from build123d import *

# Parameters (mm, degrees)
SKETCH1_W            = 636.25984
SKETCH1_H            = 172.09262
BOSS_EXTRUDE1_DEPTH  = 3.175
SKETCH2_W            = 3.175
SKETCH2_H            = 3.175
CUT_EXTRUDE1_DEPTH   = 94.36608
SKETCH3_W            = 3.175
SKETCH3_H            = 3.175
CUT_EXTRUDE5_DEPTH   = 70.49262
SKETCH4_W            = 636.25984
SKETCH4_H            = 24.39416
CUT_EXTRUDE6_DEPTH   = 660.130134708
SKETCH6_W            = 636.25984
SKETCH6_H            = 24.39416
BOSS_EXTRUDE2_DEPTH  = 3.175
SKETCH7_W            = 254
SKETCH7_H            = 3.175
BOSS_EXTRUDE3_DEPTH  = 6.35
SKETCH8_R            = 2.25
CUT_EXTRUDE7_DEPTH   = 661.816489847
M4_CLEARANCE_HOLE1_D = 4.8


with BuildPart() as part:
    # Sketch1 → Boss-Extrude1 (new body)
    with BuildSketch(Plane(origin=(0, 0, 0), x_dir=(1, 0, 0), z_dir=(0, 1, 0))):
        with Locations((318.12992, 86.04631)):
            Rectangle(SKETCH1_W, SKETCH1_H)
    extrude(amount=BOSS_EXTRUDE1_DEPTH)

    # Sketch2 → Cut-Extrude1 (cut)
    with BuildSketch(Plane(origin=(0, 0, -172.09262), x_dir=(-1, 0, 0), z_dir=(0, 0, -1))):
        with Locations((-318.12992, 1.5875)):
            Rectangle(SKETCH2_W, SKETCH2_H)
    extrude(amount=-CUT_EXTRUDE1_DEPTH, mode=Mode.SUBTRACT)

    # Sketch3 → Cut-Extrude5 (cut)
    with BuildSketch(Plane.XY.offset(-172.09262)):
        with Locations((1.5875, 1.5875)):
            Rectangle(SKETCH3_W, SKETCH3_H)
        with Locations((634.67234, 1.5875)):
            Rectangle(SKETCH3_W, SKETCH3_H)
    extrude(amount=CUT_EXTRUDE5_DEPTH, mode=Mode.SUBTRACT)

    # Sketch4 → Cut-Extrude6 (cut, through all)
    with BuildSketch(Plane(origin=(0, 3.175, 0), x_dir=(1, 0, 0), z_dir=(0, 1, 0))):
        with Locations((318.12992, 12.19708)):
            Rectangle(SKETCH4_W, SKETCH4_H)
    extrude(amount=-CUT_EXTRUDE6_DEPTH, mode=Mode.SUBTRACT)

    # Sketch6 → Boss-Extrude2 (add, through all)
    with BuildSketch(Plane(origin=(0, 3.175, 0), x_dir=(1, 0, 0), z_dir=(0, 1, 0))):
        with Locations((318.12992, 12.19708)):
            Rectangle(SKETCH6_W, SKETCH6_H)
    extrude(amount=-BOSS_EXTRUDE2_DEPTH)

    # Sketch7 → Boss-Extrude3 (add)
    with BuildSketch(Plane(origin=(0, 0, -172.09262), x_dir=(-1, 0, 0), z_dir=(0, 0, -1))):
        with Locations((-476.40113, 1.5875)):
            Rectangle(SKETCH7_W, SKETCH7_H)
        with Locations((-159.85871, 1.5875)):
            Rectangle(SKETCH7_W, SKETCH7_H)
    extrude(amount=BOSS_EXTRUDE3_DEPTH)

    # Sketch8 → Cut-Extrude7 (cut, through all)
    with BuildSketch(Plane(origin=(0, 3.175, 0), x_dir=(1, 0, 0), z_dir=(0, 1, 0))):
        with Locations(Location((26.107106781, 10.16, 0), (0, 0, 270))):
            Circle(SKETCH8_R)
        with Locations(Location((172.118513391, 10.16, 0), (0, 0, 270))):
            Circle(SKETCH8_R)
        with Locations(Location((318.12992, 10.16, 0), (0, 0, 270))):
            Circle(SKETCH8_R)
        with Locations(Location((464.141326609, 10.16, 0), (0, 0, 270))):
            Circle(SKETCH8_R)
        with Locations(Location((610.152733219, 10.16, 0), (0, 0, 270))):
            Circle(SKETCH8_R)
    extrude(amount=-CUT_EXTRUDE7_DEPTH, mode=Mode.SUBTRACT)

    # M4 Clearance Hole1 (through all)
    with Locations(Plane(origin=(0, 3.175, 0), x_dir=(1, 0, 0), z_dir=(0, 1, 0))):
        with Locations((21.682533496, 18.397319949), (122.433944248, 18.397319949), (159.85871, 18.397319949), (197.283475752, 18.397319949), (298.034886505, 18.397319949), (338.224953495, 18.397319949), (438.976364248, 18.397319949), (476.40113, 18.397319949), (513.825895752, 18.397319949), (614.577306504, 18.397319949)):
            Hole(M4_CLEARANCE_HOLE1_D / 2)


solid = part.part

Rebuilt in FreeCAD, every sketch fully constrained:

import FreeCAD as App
import Part
import Sketcher
from FreeCAD import Vector
Q = App.Units.Quantity

doc = App.newDocument("Part")
body = doc.addObject("PartDesign::Body", "Body")

# Sketch on XZ plane
sketch1 = doc.addObject("Sketcher::SketchObject", "Sketch")
body.addObject(sketch1)
sketch1.AttachmentSupport = (doc.XZ_Plane, [""])
sketch1.MapMode = "FlatFace"
sketch1.addGeometry(Part.LineSegment(Vector(0, -172, 0), Vector(0, 0, 0)), False)
sketch1.addGeometry(Part.LineSegment(Vector(0, 0, 0), Vector(636, 0, 0)), False)
sketch1.addGeometry(Part.LineSegment(Vector(636, 0, 0), Vector(636, -172, 0)), False)
sketch1.addGeometry(Part.LineSegment(Vector(636, -172, 0), Vector(0, -172, 0)), False)
sketch1.addConstraint(Sketcher.Constraint("Coincident", 0, 2, 1, 1))
sketch1.addConstraint(Sketcher.Constraint("Coincident", 1, 2, 2, 1))
sketch1.addConstraint(Sketcher.Constraint("Coincident", 2, 2, 3, 1))
sketch1.addConstraint(Sketcher.Constraint("Coincident", 3, 2, 0, 1))
sketch1.addConstraint(Sketcher.Constraint("Vertical", 0))
sketch1.addConstraint(Sketcher.Constraint("Horizontal", 1))
sketch1.addConstraint(Sketcher.Constraint("Vertical", 2))
sketch1.addConstraint(Sketcher.Constraint("Horizontal", 3))
sketch1.addConstraint(Sketcher.Constraint("Coincident", 0, 2, -1, 1))
sketch1.addConstraint(Sketcher.Constraint("DistanceX", 1, 1, 1, 2, Q("25.0496 in")))
sketch1.addConstraint(Sketcher.Constraint("DistanceY", 0, 1, 0, 2, Q("6.7753 in")))
pad1 = doc.addObject("PartDesign::Pad", "Pad")
body.addObject(pad1)
pad1.Profile = sketch1
pad1.Length = Q("0.125 in")
pad1.Reversed = True

# Sketch on XY plane
sketch2 = doc.addObject("Sketcher::SketchObject", "Sketch001")
body.addObject(sketch2)
sketch2.AttachmentSupport = (doc.XY_Plane, [""])
sketch2.MapMode = "FlatFace"
sketch2.AttachmentOffset = App.Placement(Vector(0, 0, -6.7753 * 25.4), App.Rotation())
sketch2.addGeometry(Part.LineSegment(Vector(319.7, 3.2, 0), Vector(319.7, 0, 0)), False)
sketch2.addGeometry(Part.LineSegment(Vector(319.7, 0, 0), Vector(316.5, 0, 0)), False)
sketch2.addGeometry(Part.LineSegment(Vector(316.5, 0, 0), Vector(316.5, 3.2, 0)), False)
sketch2.addGeometry(Part.LineSegment(Vector(316.5, 3.2, 0), Vector(319.7, 3.2, 0)), False)
sketch2.addConstraint(Sketcher.Constraint("Coincident", 0, 2, 1, 1))
sketch2.addConstraint(Sketcher.Constraint("Coincident", 1, 2, 2, 1))
sketch2.addConstraint(Sketcher.Constraint("Coincident", 2, 2, 3, 1))
sketch2.addConstraint(Sketcher.Constraint("Coincident", 3, 2, 0, 1))
sketch2.addConstraint(Sketcher.Constraint("Vertical", 0))
sketch2.addConstraint(Sketcher.Constraint("Horizontal", 1))
sketch2.addConstraint(Sketcher.Constraint("Vertical", 2))
sketch2.addConstraint(Sketcher.Constraint("Horizontal", 3))
sketch2.addConstraint(Sketcher.Constraint("PointOnObject", 0, 2, -1))
sketch2.addConstraint(Sketcher.Constraint("Equal", 3, 0))
sketch2.addConstraint(Sketcher.Constraint("DistanceX", 1, 2, 1, 1, Q("0.125 in")))
sketch2.addConstraint(Sketcher.Constraint("DistanceX", -1, 1, 0, 2, Q("12.5873 in")))
pocket1 = doc.addObject("PartDesign::Pocket", "Pocket")
body.addObject(pocket1)
pocket1.Profile = sketch2
pocket1.Length = Q("3.7152 in")
pocket1.Reversed = True

# Sketch on XY plane
sketch3 = doc.addObject("Sketcher::SketchObject", "Sketch002")
body.addObject(sketch3)
sketch3.AttachmentSupport = (doc.XY_Plane, [""])
sketch3.MapMode = "FlatFace"
sketch3.AttachmentOffset = App.Placement(Vector(0, 0, -6.7753 * 25.4), App.Rotation())
sketch3.addGeometry(Part.LineSegment(Vector(0, 3.2, 0), Vector(0, 0, 0)), False)
sketch3.addGeometry(Part.LineSegment(Vector(0, 0, 0), Vector(3.2, 0, 0)), False)
sketch3.addGeometry(Part.LineSegment(Vector(3.2, 0, 0), Vector(3.2, 3.2, 0)), False)
sketch3.addGeometry(Part.LineSegment(Vector(3.2, 3.2, 0), Vector(0, 3.2, 0)), False)
sketch3.addGeometry(Part.LineSegment(Vector(633.1, 3.2, 0), Vector(633.1, 0, 0)), False)
sketch3.addGeometry(Part.LineSegment(Vector(633.1, 0, 0), Vector(636.3, 0, 0)), False)
sketch3.addGeometry(Part.LineSegment(Vector(636.3, 0, 0), Vector(636.3, 3.2, 0)), False)
sketch3.addGeometry(Part.LineSegment(Vector(636.3, 3.2, 0), Vector(633.1, 3.2, 0)), False)
sketch3.addConstraint(Sketcher.Constraint("Coincident", 0, 2, 1, 1))
sketch3.addConstraint(Sketcher.Constraint("Coincident", 1, 2, 2, 1))
sketch3.addConstraint(Sketcher.Constraint("Coincident", 2, 2, 3, 1))
sketch3.addConstraint(Sketcher.Constraint("Coincident", 3, 2, 0, 1))
sketch3.addConstraint(Sketcher.Constraint("Coincident", 4, 2, 5, 1))
sketch3.addConstraint(Sketcher.Constraint("Coincident", 5, 2, 6, 1))
sketch3.addConstraint(Sketcher.Constraint("Coincident", 6, 2, 7, 1))
sketch3.addConstraint(Sketcher.Constraint("Coincident", 7, 2, 4, 1))
sketch3.addConstraint(Sketcher.Constraint("Vertical", 0))
sketch3.addConstraint(Sketcher.Constraint("Horizontal", 1))
sketch3.addConstraint(Sketcher.Constraint("Vertical", 2))
sketch3.addConstraint(Sketcher.Constraint("Horizontal", 3))
sketch3.addConstraint(Sketcher.Constraint("Vertical", 4))
sketch3.addConstraint(Sketcher.Constraint("Horizontal", 5))
sketch3.addConstraint(Sketcher.Constraint("Vertical", 6))
sketch3.addConstraint(Sketcher.Constraint("Horizontal", 7))
sketch3.addConstraint(Sketcher.Constraint("Coincident", 0, 2, -1, 1))
sketch3.addConstraint(Sketcher.Constraint("PointOnObject", 4, 2, -1))
sketch3.addConstraint(Sketcher.Constraint("Horizontal", 3, 2, 6, 2))
sketch3.addConstraint(Sketcher.Constraint("Equal", 3, 5))
sketch3.addConstraint(Sketcher.Constraint("Equal", 7, 0))
sketch3.addConstraint(Sketcher.Constraint("DistanceX", 1, 1, 1, 2, Q("0.125 in")))
sketch3.addConstraint(Sketcher.Constraint("DistanceX", -1, 1, 4, 2, Q("24.9246 in")))
pocket2 = doc.addObject("PartDesign::Pocket", "Pocket001")
body.addObject(pocket2)
pocket2.Profile = sketch3
pocket2.Length = Q("2.7753 in")
pocket2.Reversed = True

# Sketch on XZ plane
sketch4 = doc.addObject("Sketcher::SketchObject", "Sketch003")
body.addObject(sketch4)
sketch4.AttachmentSupport = (doc.XZ_Plane, [""])
sketch4.MapMode = "FlatFace"
sketch4.AttachmentOffset = App.Placement(Vector(0, 0, -0.125 * 25.4), App.Rotation())
sketch4.addGeometry(Part.LineSegment(Vector(0, -24, 0), Vector(0, 0, 0)), False)
sketch4.addGeometry(Part.LineSegment(Vector(0, 0, 0), Vector(636, 0, 0)), False)
sketch4.addGeometry(Part.LineSegment(Vector(636, 0, 0), Vector(636, -24, 0)), False)
sketch4.addGeometry(Part.LineSegment(Vector(636, -24, 0), Vector(0, -24, 0)), False)
sketch4.addConstraint(Sketcher.Constraint("Coincident", 0, 2, 1, 1))
sketch4.addConstraint(Sketcher.Constraint("Coincident", 1, 2, 2, 1))
sketch4.addConstraint(Sketcher.Constraint("Coincident", 2, 2, 3, 1))
sketch4.addConstraint(Sketcher.Constraint("Coincident", 3, 2, 0, 1))
sketch4.addConstraint(Sketcher.Constraint("Vertical", 0))
sketch4.addConstraint(Sketcher.Constraint("Horizontal", 1))
sketch4.addConstraint(Sketcher.Constraint("Vertical", 2))
sketch4.addConstraint(Sketcher.Constraint("Horizontal", 3))
sketch4.addConstraint(Sketcher.Constraint("Coincident", 0, 2, -1, 1))
sketch4.addConstraint(Sketcher.Constraint("DistanceX", 1, 1, 1, 2, Q("25.0496 in")))
sketch4.addConstraint(Sketcher.Constraint("DistanceY", 0, 1, 0, 2, Q("0.9604 in")))
pocket3 = doc.addObject("PartDesign::Pocket", "Pocket002")
body.addObject(pocket3)
pocket3.Profile = sketch4
pocket3.Type = "ThroughAll"
pocket3.Reversed = True

# Sketch on XZ plane
sketch5 = doc.addObject("Sketcher::SketchObject", "Sketch004")
body.addObject(sketch5)
sketch5.AttachmentSupport = (doc.XZ_Plane, [""])
sketch5.MapMode = "FlatFace"
sketch5.AttachmentOffset = App.Placement(Vector(0, 0, -0.125 * 25.4), App.Rotation())
sketch5.addGeometry(Part.LineSegment(Vector(0, -24, 0), Vector(0, 0, 0)), False)
sketch5.addGeometry(Part.LineSegment(Vector(0, 0, 0), Vector(636, 0, 0)), False)
sketch5.addGeometry(Part.LineSegment(Vector(636, 0, 0), Vector(636, -24, 0)), False)
sketch5.addGeometry(Part.LineSegment(Vector(636, -24, 0), Vector(0, -24, 0)), False)
sketch5.addConstraint(Sketcher.Constraint("Coincident", 0, 2, 1, 1))
sketch5.addConstraint(Sketcher.Constraint("Coincident", 1, 2, 2, 1))
sketch5.addConstraint(Sketcher.Constraint("Coincident", 2, 2, 3, 1))
sketch5.addConstraint(Sketcher.Constraint("Coincident", 3, 2, 0, 1))
sketch5.addConstraint(Sketcher.Constraint("Vertical", 0))
sketch5.addConstraint(Sketcher.Constraint("Horizontal", 1))
sketch5.addConstraint(Sketcher.Constraint("Vertical", 2))
sketch5.addConstraint(Sketcher.Constraint("Horizontal", 3))
sketch5.addConstraint(Sketcher.Constraint("Coincident", 0, 2, -1, 1))
sketch5.addConstraint(Sketcher.Constraint("DistanceX", 1, 1, 1, 2, Q("25.0496 in")))
sketch5.addConstraint(Sketcher.Constraint("DistanceY", 0, 1, 0, 2, Q("0.9604 in")))
pad2 = doc.addObject("PartDesign::Pad", "Pad001")
body.addObject(pad2)
pad2.Profile = sketch5
pad2.Length = Q("0.125 in")

# Sketch on XY plane
sketch6 = doc.addObject("Sketcher::SketchObject", "Sketch005")
body.addObject(sketch6)
sketch6.AttachmentSupport = (doc.XY_Plane, [""])
sketch6.MapMode = "FlatFace"
sketch6.AttachmentOffset = App.Placement(Vector(0, 0, -6.7753 * 25.4), App.Rotation())
sketch6.addGeometry(Part.LineSegment(Vector(603.4, 3.2, 0), Vector(603.4, 0, 0)), False)
sketch6.addGeometry(Part.LineSegment(Vector(603.4, 0, 0), Vector(349.4, 0, 0)), False)
sketch6.addGeometry(Part.LineSegment(Vector(349.4, 0, 0), Vector(349.4, 3.2, 0)), False)
sketch6.addGeometry(Part.LineSegment(Vector(349.4, 3.2, 0), Vector(603.4, 3.2, 0)), False)
sketch6.addGeometry(Part.LineSegment(Vector(286.9, 3.2, 0), Vector(286.9, 0, 0)), False)
sketch6.addGeometry(Part.LineSegment(Vector(286.9, 0, 0), Vector(32.9, 0, 0)), False)
sketch6.addGeometry(Part.LineSegment(Vector(32.9, 0, 0), Vector(32.9, 3.2, 0)), False)
sketch6.addGeometry(Part.LineSegment(Vector(32.9, 3.2, 0), Vector(286.9, 3.2, 0)), False)
sketch6.addConstraint(Sketcher.Constraint("Coincident", 0, 2, 1, 1))
sketch6.addConstraint(Sketcher.Constraint("Coincident", 1, 2, 2, 1))
sketch6.addConstraint(Sketcher.Constraint("Coincident", 2, 2, 3, 1))
sketch6.addConstraint(Sketcher.Constraint("Coincident", 3, 2, 0, 1))
sketch6.addConstraint(Sketcher.Constraint("Coincident", 4, 2, 5, 1))
sketch6.addConstraint(Sketcher.Constraint("Coincident", 5, 2, 6, 1))
sketch6.addConstraint(Sketcher.Constraint("Coincident", 6, 2, 7, 1))
sketch6.addConstraint(Sketcher.Constraint("Coincident", 7, 2, 4, 1))
sketch6.addConstraint(Sketcher.Constraint("Vertical", 0))
sketch6.addConstraint(Sketcher.Constraint("Horizontal", 1))
sketch6.addConstraint(Sketcher.Constraint("Vertical", 2))
sketch6.addConstraint(Sketcher.Constraint("Horizontal", 3))
sketch6.addConstraint(Sketcher.Constraint("Vertical", 4))
sketch6.addConstraint(Sketcher.Constraint("Horizontal", 5))
sketch6.addConstraint(Sketcher.Constraint("Vertical", 6))
sketch6.addConstraint(Sketcher.Constraint("Horizontal", 7))
sketch6.addConstraint(Sketcher.Constraint("PointOnObject", 0, 2, -1))
sketch6.addConstraint(Sketcher.Constraint("PointOnObject", 4, 2, -1))
sketch6.addConstraint(Sketcher.Constraint("Horizontal", 3, 2, 6, 2))
sketch6.addConstraint(Sketcher.Constraint("Equal", 3, 5))
sketch6.addConstraint(Sketcher.Constraint("DistanceX", 1, 2, 1, 1, Q("10 in")))
sketch6.addConstraint(Sketcher.Constraint("DistanceY", 0, 2, 0, 1, Q("0.125 in")))
sketch6.addConstraint(Sketcher.Constraint("DistanceX", 4, 2, 1, 2, Q("2.4623 in")))
sketch6.addConstraint(Sketcher.Constraint("DistanceX", -1, 1, 0, 2, Q("603.40113 mm")))
pad3 = doc.addObject("PartDesign::Pad", "Pad002")
body.addObject(pad3)
pad3.Profile = sketch6
pad3.Length = Q("0.25 in")
pad3.Reversed = True

# Sketch on XZ plane
sketch7 = doc.addObject("Sketcher::SketchObject", "Sketch006")
body.addObject(sketch7)
sketch7.AttachmentSupport = (doc.XZ_Plane, [""])
sketch7.MapMode = "FlatFace"
sketch7.AttachmentOffset = App.Placement(Vector(0, 0, -0.125 * 25.4), App.Rotation())
sketch7.addGeometry(Part.Circle(Vector(26.1, -10.2, 0), Vector(0, 0, 1), 2.2), False)
sketch7.addGeometry(Part.Circle(Vector(172.1, -10.2, 0), Vector(0, 0, 1), 2.2), False)
sketch7.addGeometry(Part.Circle(Vector(318.1, -10.2, 0), Vector(0, 0, 1), 2.2), False)
sketch7.addGeometry(Part.Circle(Vector(464.1, -10.2, 0), Vector(0, 0, 1), 2.2), False)
sketch7.addGeometry(Part.Circle(Vector(610.2, -10.2, 0), Vector(0, 0, 1), 2.2), False)
sketch7.addConstraint(Sketcher.Constraint("Equal", 0, 1))
sketch7.addConstraint(Sketcher.Constraint("Equal", 1, 2))
sketch7.addConstraint(Sketcher.Constraint("Equal", 2, 3))
sketch7.addConstraint(Sketcher.Constraint("Equal", 3, 4))
sketch7.addConstraint(Sketcher.Constraint("Horizontal", 0, 3, 1, 3))
sketch7.addConstraint(Sketcher.Constraint("Horizontal", 1, 3, 2, 3))
sketch7.addConstraint(Sketcher.Constraint("Horizontal", 2, 3, 3, 3))
sketch7.addConstraint(Sketcher.Constraint("Horizontal", 3, 3, 4, 3))
sketch7.addConstraint(Sketcher.Constraint("DistanceY", 0, 3, -1, 1, Q("0.4 in")))
sketch7.addConstraint(Sketcher.Constraint("Diameter", 0, Q("4.5 mm")))
sketch7.addConstraint(Sketcher.Constraint("DistanceX", -1, 1, 2, 3, Q("12.5248 in")))
sketch7.addConstraint(Sketcher.Constraint("DistanceX", 0, 3, 3, 3, Q("438.03422 mm")))
sketch7.addConstraint(Sketcher.Constraint("DistanceX", 1, 3, 4, 3, Q("438.03422 mm")))
sketch7.addConstraint(Sketcher.Constraint("DistanceX", -1, 1, 0, 3, Q("26.107107 mm")))
sketch7.addConstraint(Sketcher.Constraint("DistanceX", -1, 1, 1, 3, Q("172.118513 mm")))
pocket4 = doc.addObject("PartDesign::Pocket", "Pocket003")
body.addObject(pocket4)
pocket4.Profile = sketch7
pocket4.Type = "ThroughAll"
pocket4.Reversed = True

# Sketch on XZ plane
sketch8 = doc.addObject("Sketcher::SketchObject", "Sketch007")
body.addObject(sketch8)
sketch8.AttachmentSupport = (doc.XZ_Plane, [""])
sketch8.MapMode = "FlatFace"
sketch8.AttachmentOffset = App.Placement(Vector(0, 0, -0.125 * 25.4), App.Rotation())
sketch8.addGeometry(Part.Circle(Vector(21.7, -18.4, 0), Vector(0, 0, 1), 2.4), False)
sketch8.addGeometry(Part.Circle(Vector(122.4, -18.4, 0), Vector(0, 0, 1), 2.4), False)
sketch8.addGeometry(Part.Circle(Vector(159.9, -18.4, 0), Vector(0, 0, 1), 2.4), False)
sketch8.addGeometry(Part.Circle(Vector(197.3, -18.4, 0), Vector(0, 0, 1), 2.4), False)
sketch8.addGeometry(Part.Circle(Vector(298, -18.4, 0), Vector(0, 0, 1), 2.4), False)
sketch8.addGeometry(Part.Circle(Vector(338.2, -18.4, 0), Vector(0, 0, 1), 2.4), False)
sketch8.addGeometry(Part.Circle(Vector(439, -18.4, 0), Vector(0, 0, 1), 2.4), False)
sketch8.addGeometry(Part.Circle(Vector(476.4, -18.4, 0), Vector(0, 0, 1), 2.4), False)
sketch8.addGeometry(Part.Circle(Vector(513.8, -18.4, 0), Vector(0, 0, 1), 2.4), False)
sketch8.addGeometry(Part.Circle(Vector(614.6, -18.4, 0), Vector(0, 0, 1), 2.4), False)
sketch8.addConstraint(Sketcher.Constraint("Equal", 0, 1))
sketch8.addConstraint(Sketcher.Constraint("Equal", 1, 2))
sketch8.addConstraint(Sketcher.Constraint("Equal", 2, 3))
sketch8.addConstraint(Sketcher.Constraint("Equal", 3, 4))
sketch8.addConstraint(Sketcher.Constraint("Equal", 4, 5))
sketch8.addConstraint(Sketcher.Constraint("Equal", 5, 6))
sketch8.addConstraint(Sketcher.Constraint("Equal", 6, 7))
sketch8.addConstraint(Sketcher.Constraint("Equal", 7, 8))
sketch8.addConstraint(Sketcher.Constraint("Equal", 8, 9))
sketch8.addConstraint(Sketcher.Constraint("Horizontal", 0, 3, 1, 3))
sketch8.addConstraint(Sketcher.Constraint("Horizontal", 1, 3, 2, 3))
sketch8.addConstraint(Sketcher.Constraint("Horizontal", 2, 3, 3, 3))
sketch8.addConstraint(Sketcher.Constraint("Horizontal", 3, 3, 4, 3))
sketch8.addConstraint(Sketcher.Constraint("Horizontal", 4, 3, 5, 3))
sketch8.addConstraint(Sketcher.Constraint("Horizontal", 5, 3, 6, 3))
sketch8.addConstraint(Sketcher.Constraint("Horizontal", 6, 3, 7, 3))
sketch8.addConstraint(Sketcher.Constraint("Horizontal", 7, 3, 8, 3))
sketch8.addConstraint(Sketcher.Constraint("Horizontal", 8, 3, 9, 3))
sketch8.addConstraint(Sketcher.Constraint("Diameter", 0, Q("4.8 mm")))
sketch8.addConstraint(Sketcher.Constraint("DistanceX", 0, 3, 5, 3, Q("12.4623 in")))
sketch8.addConstraint(Sketcher.Constraint("DistanceX", 1, 3, 6, 3, Q("12.4623 in")))
sketch8.addConstraint(Sketcher.Constraint("DistanceX", 2, 3, 7, 3, Q("12.4623 in")))
sketch8.addConstraint(Sketcher.Constraint("DistanceX", 3, 3, 8, 3, Q("12.4623 in")))
sketch8.addConstraint(Sketcher.Constraint("DistanceX", 4, 3, 9, 3, Q("12.4623 in")))
sketch8.addConstraint(Sketcher.Constraint("DistanceY", 0, 3, -1, 1, Q("18.39732 mm")))
sketch8.addConstraint(Sketcher.Constraint("DistanceX", -1, 1, 2, 3, Q("159.85871 mm")))
sketch8.addConstraint(Sketcher.Constraint("DistanceX", 0, 3, 1, 3, Q("100.751411 mm")))
sketch8.addConstraint(Sketcher.Constraint("DistanceX", 1, 3, 3, 3, Q("74.849532 mm")))
sketch8.addConstraint(Sketcher.Constraint("DistanceX", 3, 3, 4, 3, Q("100.751411 mm")))
sketch8.addConstraint(Sketcher.Constraint("DistanceX", -1, 1, 0, 3, Q("21.682533 mm")))
doc.recompute()
hole = doc.addObject("PartDesign::Hole", "Hole")
body.addObject(hole)
hole.Profile = sketch8
hole.ThreadType = "None"
hole.Diameter = 4.8
hole.DepthType = "ThroughAll"
hole.Reversed = True

doc.recompute()
